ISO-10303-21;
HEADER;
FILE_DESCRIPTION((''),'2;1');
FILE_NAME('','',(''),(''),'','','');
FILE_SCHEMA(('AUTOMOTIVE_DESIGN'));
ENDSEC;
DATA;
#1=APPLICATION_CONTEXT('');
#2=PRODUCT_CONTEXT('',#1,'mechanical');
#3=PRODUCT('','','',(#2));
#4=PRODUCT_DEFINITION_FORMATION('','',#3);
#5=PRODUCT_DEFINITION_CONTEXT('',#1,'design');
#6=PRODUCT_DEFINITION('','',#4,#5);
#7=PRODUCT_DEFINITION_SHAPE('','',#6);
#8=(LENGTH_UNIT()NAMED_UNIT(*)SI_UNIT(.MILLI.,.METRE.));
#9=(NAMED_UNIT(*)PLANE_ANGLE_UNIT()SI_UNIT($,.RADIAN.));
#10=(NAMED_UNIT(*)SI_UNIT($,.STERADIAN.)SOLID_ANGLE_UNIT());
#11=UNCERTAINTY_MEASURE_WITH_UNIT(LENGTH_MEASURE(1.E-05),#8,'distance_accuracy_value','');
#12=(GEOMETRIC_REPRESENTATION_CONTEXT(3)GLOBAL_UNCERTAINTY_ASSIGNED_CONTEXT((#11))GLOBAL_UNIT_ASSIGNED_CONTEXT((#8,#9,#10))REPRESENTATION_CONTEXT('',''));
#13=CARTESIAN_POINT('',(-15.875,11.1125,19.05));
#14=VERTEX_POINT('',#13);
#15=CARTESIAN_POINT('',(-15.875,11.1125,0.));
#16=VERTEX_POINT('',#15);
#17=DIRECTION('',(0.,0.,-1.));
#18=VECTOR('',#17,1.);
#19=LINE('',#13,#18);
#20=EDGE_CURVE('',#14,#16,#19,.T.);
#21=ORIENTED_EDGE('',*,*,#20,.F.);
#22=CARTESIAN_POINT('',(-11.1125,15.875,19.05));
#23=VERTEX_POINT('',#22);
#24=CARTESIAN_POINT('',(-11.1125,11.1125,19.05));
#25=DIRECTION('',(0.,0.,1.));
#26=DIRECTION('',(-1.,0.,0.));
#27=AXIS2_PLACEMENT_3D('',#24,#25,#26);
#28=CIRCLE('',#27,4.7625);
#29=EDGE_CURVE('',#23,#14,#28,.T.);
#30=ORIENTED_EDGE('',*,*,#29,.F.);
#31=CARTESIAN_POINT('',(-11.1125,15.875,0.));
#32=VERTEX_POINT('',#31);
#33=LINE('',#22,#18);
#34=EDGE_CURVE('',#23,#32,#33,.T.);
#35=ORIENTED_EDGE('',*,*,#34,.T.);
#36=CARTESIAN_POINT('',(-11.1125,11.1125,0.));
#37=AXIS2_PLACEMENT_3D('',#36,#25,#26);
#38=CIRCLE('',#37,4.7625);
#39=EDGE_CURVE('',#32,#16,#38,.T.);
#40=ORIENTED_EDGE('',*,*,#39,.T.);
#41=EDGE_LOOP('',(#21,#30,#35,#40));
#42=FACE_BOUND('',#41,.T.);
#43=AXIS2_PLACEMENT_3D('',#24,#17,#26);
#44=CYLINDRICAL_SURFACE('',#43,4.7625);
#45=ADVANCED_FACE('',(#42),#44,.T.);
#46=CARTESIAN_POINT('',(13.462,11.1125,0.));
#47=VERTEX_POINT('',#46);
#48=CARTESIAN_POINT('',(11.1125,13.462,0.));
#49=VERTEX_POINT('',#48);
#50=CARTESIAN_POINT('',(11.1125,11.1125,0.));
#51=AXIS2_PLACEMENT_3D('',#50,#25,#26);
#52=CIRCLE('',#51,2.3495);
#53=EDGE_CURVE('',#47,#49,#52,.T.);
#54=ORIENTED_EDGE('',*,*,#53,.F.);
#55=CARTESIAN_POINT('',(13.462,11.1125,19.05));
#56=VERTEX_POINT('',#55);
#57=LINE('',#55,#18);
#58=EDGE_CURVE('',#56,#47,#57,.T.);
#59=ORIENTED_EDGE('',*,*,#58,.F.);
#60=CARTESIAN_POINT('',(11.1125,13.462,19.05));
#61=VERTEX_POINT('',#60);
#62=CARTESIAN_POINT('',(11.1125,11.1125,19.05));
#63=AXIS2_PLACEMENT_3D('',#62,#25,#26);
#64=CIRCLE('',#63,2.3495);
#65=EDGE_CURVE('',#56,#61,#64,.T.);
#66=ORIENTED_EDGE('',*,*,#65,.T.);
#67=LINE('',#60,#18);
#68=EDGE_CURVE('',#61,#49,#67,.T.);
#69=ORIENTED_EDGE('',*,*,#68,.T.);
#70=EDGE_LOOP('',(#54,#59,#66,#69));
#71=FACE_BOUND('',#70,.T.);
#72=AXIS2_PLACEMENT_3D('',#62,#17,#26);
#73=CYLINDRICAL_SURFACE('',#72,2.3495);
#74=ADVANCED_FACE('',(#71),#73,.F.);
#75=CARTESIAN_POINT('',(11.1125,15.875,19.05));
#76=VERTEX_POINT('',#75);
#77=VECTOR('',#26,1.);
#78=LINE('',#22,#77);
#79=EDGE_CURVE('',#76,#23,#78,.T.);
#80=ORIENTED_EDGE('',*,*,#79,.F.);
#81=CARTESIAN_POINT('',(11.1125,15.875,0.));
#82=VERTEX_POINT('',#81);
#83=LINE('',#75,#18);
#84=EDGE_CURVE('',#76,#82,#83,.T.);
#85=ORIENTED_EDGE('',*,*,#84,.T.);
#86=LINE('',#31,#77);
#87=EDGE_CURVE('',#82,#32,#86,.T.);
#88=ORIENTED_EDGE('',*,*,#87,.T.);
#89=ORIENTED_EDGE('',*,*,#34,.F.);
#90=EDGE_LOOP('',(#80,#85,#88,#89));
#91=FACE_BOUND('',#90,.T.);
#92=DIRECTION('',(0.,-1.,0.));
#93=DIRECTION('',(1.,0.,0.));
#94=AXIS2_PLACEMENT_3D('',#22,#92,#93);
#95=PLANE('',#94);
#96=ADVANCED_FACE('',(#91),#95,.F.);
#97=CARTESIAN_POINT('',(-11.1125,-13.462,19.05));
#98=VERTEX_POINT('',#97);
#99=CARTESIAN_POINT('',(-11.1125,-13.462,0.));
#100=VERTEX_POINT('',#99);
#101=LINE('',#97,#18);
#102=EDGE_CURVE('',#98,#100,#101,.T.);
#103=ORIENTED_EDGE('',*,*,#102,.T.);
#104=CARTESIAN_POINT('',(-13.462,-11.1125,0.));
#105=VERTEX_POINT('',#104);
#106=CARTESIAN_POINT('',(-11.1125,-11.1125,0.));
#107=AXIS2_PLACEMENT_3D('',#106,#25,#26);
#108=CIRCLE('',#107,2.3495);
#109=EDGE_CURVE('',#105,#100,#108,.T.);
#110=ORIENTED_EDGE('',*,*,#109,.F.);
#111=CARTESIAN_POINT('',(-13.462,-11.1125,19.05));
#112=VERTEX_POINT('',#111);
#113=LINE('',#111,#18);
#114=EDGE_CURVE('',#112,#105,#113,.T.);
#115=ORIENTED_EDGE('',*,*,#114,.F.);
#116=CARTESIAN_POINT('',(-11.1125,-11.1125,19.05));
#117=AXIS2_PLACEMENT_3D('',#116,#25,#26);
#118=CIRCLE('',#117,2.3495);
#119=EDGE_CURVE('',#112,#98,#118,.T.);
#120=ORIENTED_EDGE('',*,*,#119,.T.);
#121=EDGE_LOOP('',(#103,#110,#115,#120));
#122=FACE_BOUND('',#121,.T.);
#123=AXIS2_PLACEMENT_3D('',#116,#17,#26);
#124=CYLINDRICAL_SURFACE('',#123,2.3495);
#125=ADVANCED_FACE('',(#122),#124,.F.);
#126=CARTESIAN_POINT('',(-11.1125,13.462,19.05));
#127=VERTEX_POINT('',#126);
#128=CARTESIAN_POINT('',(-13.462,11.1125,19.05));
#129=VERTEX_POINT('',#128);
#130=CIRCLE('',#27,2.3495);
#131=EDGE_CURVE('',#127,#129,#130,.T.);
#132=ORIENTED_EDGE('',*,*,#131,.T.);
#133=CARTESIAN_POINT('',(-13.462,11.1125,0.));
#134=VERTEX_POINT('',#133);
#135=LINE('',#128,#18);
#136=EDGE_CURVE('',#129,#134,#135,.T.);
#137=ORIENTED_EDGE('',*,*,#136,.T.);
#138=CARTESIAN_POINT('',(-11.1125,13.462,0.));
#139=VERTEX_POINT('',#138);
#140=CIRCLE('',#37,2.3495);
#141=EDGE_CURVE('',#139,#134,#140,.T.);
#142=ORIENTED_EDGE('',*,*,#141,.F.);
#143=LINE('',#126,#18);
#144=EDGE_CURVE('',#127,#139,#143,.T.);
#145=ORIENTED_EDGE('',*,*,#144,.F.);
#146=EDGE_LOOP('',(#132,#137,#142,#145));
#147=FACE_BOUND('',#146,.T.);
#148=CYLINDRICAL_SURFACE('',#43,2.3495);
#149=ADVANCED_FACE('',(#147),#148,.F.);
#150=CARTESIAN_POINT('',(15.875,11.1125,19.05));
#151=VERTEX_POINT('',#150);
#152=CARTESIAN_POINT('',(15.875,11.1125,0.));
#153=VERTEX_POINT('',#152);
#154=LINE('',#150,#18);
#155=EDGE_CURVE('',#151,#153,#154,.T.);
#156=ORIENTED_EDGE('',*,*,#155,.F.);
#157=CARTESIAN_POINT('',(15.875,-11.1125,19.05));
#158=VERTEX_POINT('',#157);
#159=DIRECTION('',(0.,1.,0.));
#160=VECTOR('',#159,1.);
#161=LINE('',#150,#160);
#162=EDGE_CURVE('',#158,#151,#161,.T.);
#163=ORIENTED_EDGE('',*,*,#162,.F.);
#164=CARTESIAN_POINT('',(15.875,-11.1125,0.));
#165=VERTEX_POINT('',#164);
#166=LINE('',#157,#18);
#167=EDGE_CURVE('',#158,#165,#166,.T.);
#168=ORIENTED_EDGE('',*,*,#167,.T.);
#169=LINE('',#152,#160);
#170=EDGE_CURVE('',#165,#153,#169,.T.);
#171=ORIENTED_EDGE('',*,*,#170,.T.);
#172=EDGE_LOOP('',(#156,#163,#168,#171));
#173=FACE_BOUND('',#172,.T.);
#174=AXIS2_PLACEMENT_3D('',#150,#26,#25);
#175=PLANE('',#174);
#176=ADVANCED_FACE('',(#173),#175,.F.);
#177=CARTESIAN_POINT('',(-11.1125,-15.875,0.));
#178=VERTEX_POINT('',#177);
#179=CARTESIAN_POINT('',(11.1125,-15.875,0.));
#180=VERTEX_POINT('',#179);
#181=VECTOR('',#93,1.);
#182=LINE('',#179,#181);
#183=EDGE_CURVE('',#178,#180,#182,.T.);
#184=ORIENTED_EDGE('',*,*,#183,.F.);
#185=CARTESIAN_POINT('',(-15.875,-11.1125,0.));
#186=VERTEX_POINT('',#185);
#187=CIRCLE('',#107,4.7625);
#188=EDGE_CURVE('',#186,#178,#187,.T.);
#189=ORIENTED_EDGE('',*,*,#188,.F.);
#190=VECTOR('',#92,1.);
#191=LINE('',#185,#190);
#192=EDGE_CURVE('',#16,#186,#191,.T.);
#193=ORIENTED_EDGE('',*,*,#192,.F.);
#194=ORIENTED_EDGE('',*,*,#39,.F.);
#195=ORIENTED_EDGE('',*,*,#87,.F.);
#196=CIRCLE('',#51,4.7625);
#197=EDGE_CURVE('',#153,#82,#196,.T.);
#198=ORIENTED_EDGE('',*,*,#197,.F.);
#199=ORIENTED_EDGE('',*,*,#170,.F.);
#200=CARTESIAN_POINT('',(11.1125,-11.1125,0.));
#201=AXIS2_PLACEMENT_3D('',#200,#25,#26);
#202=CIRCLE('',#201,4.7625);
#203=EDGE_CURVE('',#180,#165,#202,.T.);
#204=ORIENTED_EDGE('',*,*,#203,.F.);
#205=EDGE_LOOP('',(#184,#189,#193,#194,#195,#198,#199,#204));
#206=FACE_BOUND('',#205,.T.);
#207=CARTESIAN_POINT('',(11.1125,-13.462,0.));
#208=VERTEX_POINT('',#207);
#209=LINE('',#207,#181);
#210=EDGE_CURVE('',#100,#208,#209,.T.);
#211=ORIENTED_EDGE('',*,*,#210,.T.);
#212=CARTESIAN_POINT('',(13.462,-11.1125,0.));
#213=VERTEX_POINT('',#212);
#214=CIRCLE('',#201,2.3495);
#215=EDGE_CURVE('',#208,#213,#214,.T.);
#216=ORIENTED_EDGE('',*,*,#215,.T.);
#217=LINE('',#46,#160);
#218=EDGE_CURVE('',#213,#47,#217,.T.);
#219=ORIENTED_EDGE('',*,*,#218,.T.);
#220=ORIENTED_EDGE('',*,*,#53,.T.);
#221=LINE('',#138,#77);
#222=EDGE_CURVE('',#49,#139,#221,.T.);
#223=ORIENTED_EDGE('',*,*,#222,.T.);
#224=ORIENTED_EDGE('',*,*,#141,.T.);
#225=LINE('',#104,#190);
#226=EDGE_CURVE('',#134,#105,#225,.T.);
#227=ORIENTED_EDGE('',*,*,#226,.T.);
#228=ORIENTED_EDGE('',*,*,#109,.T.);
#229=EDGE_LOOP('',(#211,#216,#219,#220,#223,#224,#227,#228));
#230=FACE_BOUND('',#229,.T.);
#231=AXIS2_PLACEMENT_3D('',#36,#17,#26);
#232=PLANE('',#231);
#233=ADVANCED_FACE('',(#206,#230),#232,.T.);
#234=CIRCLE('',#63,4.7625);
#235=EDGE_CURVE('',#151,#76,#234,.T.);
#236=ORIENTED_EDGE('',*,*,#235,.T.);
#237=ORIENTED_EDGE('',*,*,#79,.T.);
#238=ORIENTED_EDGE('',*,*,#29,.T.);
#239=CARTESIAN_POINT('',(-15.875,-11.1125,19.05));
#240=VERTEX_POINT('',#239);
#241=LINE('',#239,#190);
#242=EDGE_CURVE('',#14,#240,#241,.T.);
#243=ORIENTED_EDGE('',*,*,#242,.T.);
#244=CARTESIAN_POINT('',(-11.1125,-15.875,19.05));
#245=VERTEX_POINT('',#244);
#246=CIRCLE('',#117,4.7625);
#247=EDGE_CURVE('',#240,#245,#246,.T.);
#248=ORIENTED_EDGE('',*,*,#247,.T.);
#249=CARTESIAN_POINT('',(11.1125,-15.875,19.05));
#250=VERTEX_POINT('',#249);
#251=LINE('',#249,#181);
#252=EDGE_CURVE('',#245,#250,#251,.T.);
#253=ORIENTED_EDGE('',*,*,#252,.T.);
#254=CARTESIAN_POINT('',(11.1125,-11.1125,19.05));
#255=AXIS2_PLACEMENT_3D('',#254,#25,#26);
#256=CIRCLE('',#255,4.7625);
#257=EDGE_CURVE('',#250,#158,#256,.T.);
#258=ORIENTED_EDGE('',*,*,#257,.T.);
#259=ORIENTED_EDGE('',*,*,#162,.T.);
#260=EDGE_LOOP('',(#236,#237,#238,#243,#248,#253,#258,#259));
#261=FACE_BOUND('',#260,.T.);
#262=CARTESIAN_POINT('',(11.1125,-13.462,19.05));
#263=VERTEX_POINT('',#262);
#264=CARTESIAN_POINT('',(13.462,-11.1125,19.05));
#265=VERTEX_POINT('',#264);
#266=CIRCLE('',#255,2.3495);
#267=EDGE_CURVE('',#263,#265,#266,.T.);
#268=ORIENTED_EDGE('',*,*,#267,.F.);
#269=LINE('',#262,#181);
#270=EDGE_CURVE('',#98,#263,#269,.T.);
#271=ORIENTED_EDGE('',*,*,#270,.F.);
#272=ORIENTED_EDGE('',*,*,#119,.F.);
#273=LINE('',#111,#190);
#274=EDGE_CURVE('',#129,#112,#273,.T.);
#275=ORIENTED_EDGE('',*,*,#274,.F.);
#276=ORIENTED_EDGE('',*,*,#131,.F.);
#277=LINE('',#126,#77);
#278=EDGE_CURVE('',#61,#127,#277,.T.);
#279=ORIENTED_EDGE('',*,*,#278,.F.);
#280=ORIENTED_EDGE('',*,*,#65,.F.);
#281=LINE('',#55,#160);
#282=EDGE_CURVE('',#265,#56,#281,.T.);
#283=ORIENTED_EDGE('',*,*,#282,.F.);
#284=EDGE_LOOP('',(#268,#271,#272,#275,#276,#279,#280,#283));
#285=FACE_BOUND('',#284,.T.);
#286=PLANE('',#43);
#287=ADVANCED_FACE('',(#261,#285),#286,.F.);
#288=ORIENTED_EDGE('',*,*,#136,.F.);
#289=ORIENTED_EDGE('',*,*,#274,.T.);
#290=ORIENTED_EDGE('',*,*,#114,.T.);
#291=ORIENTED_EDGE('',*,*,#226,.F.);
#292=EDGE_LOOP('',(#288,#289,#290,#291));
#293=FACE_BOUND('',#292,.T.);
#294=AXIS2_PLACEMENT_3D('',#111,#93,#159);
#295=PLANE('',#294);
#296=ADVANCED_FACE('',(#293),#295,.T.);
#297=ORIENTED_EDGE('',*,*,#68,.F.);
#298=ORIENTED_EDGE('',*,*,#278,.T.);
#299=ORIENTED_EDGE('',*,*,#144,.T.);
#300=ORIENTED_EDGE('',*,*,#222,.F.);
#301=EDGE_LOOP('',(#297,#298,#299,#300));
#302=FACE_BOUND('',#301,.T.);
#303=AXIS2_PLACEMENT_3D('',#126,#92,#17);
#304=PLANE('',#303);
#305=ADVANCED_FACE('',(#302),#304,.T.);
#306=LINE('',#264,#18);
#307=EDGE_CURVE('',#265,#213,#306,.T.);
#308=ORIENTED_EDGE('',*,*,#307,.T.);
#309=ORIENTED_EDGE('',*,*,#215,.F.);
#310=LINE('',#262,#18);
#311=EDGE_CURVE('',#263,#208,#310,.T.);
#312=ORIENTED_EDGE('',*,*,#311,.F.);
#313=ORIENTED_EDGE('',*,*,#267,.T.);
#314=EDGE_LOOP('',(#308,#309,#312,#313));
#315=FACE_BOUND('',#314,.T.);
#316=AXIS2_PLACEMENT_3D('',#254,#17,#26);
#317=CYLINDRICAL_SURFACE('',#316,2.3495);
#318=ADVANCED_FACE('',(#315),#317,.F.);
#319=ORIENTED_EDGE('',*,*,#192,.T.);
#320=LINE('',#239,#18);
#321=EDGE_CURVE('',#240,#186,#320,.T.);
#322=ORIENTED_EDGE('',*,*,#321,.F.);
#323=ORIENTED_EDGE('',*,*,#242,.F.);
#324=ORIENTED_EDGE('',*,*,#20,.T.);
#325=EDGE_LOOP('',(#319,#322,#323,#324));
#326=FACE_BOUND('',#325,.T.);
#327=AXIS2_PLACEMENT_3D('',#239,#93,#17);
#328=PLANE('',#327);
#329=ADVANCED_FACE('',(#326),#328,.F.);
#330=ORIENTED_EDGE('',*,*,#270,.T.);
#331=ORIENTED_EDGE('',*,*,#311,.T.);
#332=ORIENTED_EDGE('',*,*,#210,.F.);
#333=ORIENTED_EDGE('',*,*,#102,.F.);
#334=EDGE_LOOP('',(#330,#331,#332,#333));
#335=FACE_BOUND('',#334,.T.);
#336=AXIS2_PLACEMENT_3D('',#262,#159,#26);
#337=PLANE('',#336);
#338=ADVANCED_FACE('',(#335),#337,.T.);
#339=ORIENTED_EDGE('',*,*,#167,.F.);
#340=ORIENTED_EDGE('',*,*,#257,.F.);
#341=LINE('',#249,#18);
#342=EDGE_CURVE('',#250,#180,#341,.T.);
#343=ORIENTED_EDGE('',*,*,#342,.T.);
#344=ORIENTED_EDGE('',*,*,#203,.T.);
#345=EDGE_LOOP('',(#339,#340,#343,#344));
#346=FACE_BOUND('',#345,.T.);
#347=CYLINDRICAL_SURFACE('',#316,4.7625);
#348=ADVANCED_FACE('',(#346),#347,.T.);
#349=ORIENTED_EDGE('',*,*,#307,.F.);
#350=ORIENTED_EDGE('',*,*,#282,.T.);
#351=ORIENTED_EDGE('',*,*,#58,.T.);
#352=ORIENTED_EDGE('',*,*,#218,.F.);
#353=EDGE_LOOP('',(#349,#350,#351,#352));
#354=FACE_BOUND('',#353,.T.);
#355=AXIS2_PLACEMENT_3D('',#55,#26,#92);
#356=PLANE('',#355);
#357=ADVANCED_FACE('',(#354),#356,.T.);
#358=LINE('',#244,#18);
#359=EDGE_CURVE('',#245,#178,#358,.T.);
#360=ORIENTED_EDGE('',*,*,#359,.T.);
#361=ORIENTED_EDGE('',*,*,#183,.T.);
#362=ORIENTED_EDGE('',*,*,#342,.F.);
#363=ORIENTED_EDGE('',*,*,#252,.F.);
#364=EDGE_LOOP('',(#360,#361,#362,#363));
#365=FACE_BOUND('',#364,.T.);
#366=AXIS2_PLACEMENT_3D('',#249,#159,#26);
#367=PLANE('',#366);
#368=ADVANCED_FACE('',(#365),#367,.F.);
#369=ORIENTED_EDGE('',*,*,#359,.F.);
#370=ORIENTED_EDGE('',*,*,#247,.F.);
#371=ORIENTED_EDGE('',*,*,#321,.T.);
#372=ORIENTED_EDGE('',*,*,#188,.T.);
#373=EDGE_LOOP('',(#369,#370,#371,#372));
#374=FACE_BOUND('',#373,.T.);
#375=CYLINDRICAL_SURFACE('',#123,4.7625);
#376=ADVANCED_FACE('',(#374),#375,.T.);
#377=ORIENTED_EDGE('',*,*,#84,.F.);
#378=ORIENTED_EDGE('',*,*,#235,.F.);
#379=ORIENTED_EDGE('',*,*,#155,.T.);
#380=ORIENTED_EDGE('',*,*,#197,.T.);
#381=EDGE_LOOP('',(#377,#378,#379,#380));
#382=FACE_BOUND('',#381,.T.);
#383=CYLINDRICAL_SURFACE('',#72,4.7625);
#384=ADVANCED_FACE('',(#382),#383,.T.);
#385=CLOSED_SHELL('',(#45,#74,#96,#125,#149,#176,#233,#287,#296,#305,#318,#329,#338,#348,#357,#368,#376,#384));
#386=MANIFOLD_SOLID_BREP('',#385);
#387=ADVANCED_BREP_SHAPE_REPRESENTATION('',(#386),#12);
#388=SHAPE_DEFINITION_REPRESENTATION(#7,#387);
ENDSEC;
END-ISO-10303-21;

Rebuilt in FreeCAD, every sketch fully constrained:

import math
import FreeCAD as App
import Part
import Sketcher
Q = App.Units.Quantity

doc = App.newDocument("Part")
body = doc.addObject("PartDesign::Body", "Body")

# Sketch on XY plane
sketch1 = body.newObject("Sketcher::SketchObject", "Sketch")
sketch1.AttachmentSupport = (doc.getObject("XY_Plane"), [""])
sketch1.MapMode = "FlatFace"
sketch1.addGeometry([
    Part.LineSegment(App.Vector(11.1125, 15.875, 0), App.Vector(-11.1125, 15.875, 0)),  # 0
    Part.ArcOfCircle(Part.Circle(App.Vector(-11.1125, 11.1125, 0), App.Vector(0, 0, 1), 4.7625), math.radians(90), math.radians(180)),  # 1
    Part.LineSegment(App.Vector(-15.875, 11.1125, 0), App.Vector(-15.875, -11.1125, 0)),  # 2
    Part.ArcOfCircle(Part.Circle(App.Vector(-11.1125, -11.1125, 0), App.Vector(0, 0, 1), 4.7625), math.radians(-180), math.radians(-90)),  # 3
    Part.LineSegment(App.Vector(-11.1125, -15.875, 0), App.Vector(11.1125, -15.875, 0)),  # 4
    Part.ArcOfCircle(Part.Circle(App.Vector(11.1125, -11.1125, 0), App.Vector(0, 0, 1), 4.7625), math.radians(-90), math.radians(0)),  # 5
    Part.LineSegment(App.Vector(15.875, -11.1125, 0), App.Vector(15.875, 11.1125, 0)),  # 6
    Part.ArcOfCircle(Part.Circle(App.Vector(11.1125, 11.1125, 0), App.Vector(0, 0, 1), 4.7625), math.radians(0), math.radians(90)),  # 7
    Part.LineSegment(App.Vector(-11.1125, 13.462, 0), App.Vector(11.1125, 13.462, 0)),  # 8
    Part.ArcOfCircle(Part.Circle(App.Vector(11.1125, 11.1125, 0), App.Vector(0, 0, 1), 2.3495), math.radians(0), math.radians(90)),  # 9
    Part.LineSegment(App.Vector(13.462, 11.1125, 0), App.Vector(13.462, -11.1125, 0)),  # 10
    Part.ArcOfCircle(Part.Circle(App.Vector(11.1125, -11.1125, 0), App.Vector(0, 0, 1), 2.3495), math.radians(-90), math.radians(0)),  # 11
    Part.LineSegment(App.Vector(11.1125, -13.462, 0), App.Vector(-11.1125, -13.462, 0)),  # 12
    Part.ArcOfCircle(Part.Circle(App.Vector(-11.1125, -11.1125, 0), App.Vector(0, 0, 1), 2.3495), math.radians(-180), math.radians(-90)),  # 13
    Part.LineSegment(App.Vector(-13.462, -11.1125, 0), App.Vector(-13.462, 11.1125, 0)),  # 14
    Part.ArcOfCircle(Part.Circle(App.Vector(-11.1125, 11.1125, 0), App.Vector(0, 0, 1), 2.3495), math.radians(90), math.radians(180)),  # 15
], False)
sketch1.addConstraint([
    Sketcher.Constraint("Tangent", 0, 2, 1, 1),
    Sketcher.Constraint("Tangent", 1, 2, 2, 1),
    Sketcher.Constraint("Tangent", 2, 2, 3, 1),
    Sketcher.Constraint("Tangent", 3, 2, 4, 1),
    Sketcher.Constraint("Tangent", 4, 2, 5, 1),
    Sketcher.Constraint("Tangent", 5, 2, 6, 1),
    Sketcher.Constraint("Tangent", 6, 2, 7, 1),
    Sketcher.Constraint("Tangent", 7, 2, 0, 1),
    Sketcher.Constraint("Tangent", 8, 2, 9, 2),
    Sketcher.Constraint("Tangent", 9, 1, 10, 1),
    Sketcher.Constraint("Tangent", 10, 2, 11, 2),
    Sketcher.Constraint("Tangent", 11, 1, 12, 1),
    Sketcher.Constraint("Tangent", 12, 2, 13, 2),
    Sketcher.Constraint("Tangent", 13, 1, 14, 1),
    Sketcher.Constraint("Tangent", 14, 2, 15, 2),
    Sketcher.Constraint("Tangent", 15, 1, 8, 1),
    Sketcher.Constraint("Horizontal", 0),
    Sketcher.Constraint("Vertical", 2),
    Sketcher.Constraint("Horizontal", 4),
    Sketcher.Constraint("Vertical", 6),
    Sketcher.Constraint("Horizontal", 8),
    Sketcher.Constraint("Vertical", 10),
    Sketcher.Constraint("Horizontal", 12),
    Sketcher.Constraint("Vertical", 14),
    Sketcher.Constraint("Coincident", 9, 3, 7, 3),
    Sketcher.Constraint("Coincident", 11, 3, 5, 3),
    Sketcher.Constraint("Coincident", 13, 3, 3, 3),
    Sketcher.Constraint("Equal", 1, 3),
    Sketcher.Constraint("Equal", 3, 5),
    Sketcher.Constraint("Equal", 5, 7),
    Sketcher.Constraint("Equal", 13, 15),
    Sketcher.Constraint("Symmetric", 1, 3, 5, 3, -1, 1),
    Sketcher.Constraint("Equal", 12, 2),
    Sketcher.Constraint("Radius", 1, Q("0.1875 in")),
    Sketcher.Constraint("Radius", 9, Q("0.0925 in")),
    Sketcher.Constraint("DistanceX", 0, 2, 0, 1, Q("0.875 in")),
])
pad1 = body.newObject("PartDesign::Pad", "Pad")
pad1.Profile = sketch1
pad1.Length = Q("0.75 in")

doc.recompute()
